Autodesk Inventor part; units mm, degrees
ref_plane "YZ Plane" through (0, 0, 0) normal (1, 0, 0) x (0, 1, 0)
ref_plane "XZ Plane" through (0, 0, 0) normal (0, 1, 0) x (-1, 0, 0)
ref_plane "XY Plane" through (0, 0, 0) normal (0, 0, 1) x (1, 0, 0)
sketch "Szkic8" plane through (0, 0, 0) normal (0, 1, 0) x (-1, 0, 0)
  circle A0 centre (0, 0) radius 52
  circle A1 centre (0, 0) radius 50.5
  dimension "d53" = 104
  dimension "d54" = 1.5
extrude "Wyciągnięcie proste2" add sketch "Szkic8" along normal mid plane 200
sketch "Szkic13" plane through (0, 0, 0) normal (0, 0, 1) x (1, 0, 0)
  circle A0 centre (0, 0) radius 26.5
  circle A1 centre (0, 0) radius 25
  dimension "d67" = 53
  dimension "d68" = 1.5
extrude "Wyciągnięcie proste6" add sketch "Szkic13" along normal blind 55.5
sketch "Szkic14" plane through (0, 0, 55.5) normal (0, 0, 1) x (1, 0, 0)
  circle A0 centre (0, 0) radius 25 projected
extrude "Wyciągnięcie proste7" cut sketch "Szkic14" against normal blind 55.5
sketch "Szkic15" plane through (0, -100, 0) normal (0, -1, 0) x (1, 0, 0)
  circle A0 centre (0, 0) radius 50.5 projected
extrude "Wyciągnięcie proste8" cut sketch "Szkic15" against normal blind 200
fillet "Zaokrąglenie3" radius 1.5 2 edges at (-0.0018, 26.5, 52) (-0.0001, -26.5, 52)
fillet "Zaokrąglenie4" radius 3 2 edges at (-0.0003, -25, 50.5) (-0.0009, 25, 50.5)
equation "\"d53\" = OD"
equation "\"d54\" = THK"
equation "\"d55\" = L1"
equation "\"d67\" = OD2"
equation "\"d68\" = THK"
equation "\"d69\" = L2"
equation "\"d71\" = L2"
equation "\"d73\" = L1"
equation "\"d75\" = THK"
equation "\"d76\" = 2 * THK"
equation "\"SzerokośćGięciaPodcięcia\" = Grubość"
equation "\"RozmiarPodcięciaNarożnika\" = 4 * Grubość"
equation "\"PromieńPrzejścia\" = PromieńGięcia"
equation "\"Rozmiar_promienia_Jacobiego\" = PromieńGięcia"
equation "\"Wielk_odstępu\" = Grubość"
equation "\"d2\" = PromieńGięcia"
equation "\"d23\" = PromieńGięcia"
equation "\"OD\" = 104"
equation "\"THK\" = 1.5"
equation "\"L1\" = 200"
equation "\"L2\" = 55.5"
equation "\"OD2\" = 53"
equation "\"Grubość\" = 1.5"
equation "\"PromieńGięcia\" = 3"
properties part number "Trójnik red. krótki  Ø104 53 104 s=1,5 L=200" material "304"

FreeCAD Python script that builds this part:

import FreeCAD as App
import Part
import Sketcher


def edges_at(feature, points):
    """Names of the edges that pass closest to the given points."""
    edges = feature.Shape.Edges
    near = lambda p: min(range(len(edges)), key=lambda i: edges[i].distToShape(Part.Vertex(*p))[0])
    return sorted({f"Edge{near(p) + 1}" for p in points})

doc = App.newDocument("Part")
body = doc.addObject("PartDesign::Body", "Body")

# Sketch on XZ plane
sketch1 = body.newObject("Sketcher::SketchObject", "Sketch")
sketch1.AttachmentSupport = (doc.getObject("XZ_Plane"), [""])
sketch1.MapMode = "FlatFace"
sketch1.addGeometry([
    Part.Circle(App.Vector(0, 0, 0), App.Vector(0, 0, 1), 52),
    Part.Circle(App.Vector(0, 0, 0), App.Vector(0, 0, 1), 50),
], False)
sketch1.addConstraint([
    Sketcher.Constraint("Coincident", 0, 3, -1, 1),
    Sketcher.Constraint("Coincident", 1, 3, -1, 1),
    Sketcher.Constraint("Diameter", 0, 104.0),
    Sketcher.Constraint("Diameter", 1, 101.0),
])
pad1 = body.newObject("PartDesign::Pad", "Pad")
pad1.Profile = sketch1
pad1.Length = 200
pad1.Midplane = True

# Sketch on XY plane
sketch2 = body.newObject("Sketcher::SketchObject", "Sketch001")
sketch2.AttachmentSupport = (doc.getObject("XY_Plane"), [""])
sketch2.MapMode = "FlatFace"
sketch2.addGeometry([
    Part.Circle(App.Vector(0, 0, 0), App.Vector(0, 0, 1), 26),
    Part.Circle(App.Vector(0, 0, 0), App.Vector(0, 0, 1), 25),
], False)
sketch2.addConstraint([
    Sketcher.Constraint("Coincident", 0, 3, -1, 1),
    Sketcher.Constraint("Coincident", 1, 3, -1, 1),
    Sketcher.Constraint("Diameter", 0, 53.0),
    Sketcher.Constraint("Diameter", 1, 50.0),
])
pad2 = body.newObject("PartDesign::Pad", "Pad001")
pad2.Profile = sketch2
pad2.Length = 55.5

# Sketch on XY plane
sketch3 = body.newObject("Sketcher::SketchObject", "Sketch002")
sketch3.AttachmentSupport = (doc.getObject("XY_Plane"), [""])
sketch3.MapMode = "FlatFace"
sketch3.AttachmentOffset = App.Placement(App.Vector(0, 0, 55.5), App.Rotation())
sketch3.addGeometry(Part.Circle(App.Vector(0, 0, 0), App.Vector(0, 0, 1), 25), False)
sketch3.addConstraint([
    Sketcher.Constraint("Coincident", 0, 3, -1, 1),
    Sketcher.Constraint("Diameter", 0, 50.0),
])
pocket1 = body.newObject("PartDesign::Pocket", "Pocket")
pocket1.Profile = sketch3
pocket1.Length = 55.5

# Sketch on XZ plane
sketch4 = body.newObject("Sketcher::SketchObject", "Sketch003")
sketch4.AttachmentSupport = (doc.getObject("XZ_Plane"), [""])
sketch4.MapMode = "FlatFace"
sketch4.AttachmentOffset = App.Placement(App.Vector(0, 0, 100), App.Rotation())
sketch4.addGeometry(Part.Circle(App.Vector(0, 0, 0), App.Vector(0, 0, 1), 50), False)
sketch4.addConstraint([
    Sketcher.Constraint("Coincident", 0, 3, -1, 1),
    Sketcher.Constraint("Diameter", 0, 101.0),
])
pocket2 = body.newObject("PartDesign::Pocket", "Pocket001")
pocket2.Profile = sketch4
pocket2.Length = 200
doc.recompute()

fillet = body.newObject("PartDesign::Fillet", "Fillet")
fillet.Base = (pocket2, edges_at(pocket2, [(-0.002, 26.5, 52), (0, -26.5, 52)]))
fillet.Radius = 1.5
doc.recompute()

fillet2 = body.newObject("PartDesign::Fillet", "Fillet001")
fillet2.Base = (fillet, edges_at(fillet, [(0, -25, 50.5), (-0.001, 25, 50.5)]))
fillet2.Radius = 3

doc.recompute()
